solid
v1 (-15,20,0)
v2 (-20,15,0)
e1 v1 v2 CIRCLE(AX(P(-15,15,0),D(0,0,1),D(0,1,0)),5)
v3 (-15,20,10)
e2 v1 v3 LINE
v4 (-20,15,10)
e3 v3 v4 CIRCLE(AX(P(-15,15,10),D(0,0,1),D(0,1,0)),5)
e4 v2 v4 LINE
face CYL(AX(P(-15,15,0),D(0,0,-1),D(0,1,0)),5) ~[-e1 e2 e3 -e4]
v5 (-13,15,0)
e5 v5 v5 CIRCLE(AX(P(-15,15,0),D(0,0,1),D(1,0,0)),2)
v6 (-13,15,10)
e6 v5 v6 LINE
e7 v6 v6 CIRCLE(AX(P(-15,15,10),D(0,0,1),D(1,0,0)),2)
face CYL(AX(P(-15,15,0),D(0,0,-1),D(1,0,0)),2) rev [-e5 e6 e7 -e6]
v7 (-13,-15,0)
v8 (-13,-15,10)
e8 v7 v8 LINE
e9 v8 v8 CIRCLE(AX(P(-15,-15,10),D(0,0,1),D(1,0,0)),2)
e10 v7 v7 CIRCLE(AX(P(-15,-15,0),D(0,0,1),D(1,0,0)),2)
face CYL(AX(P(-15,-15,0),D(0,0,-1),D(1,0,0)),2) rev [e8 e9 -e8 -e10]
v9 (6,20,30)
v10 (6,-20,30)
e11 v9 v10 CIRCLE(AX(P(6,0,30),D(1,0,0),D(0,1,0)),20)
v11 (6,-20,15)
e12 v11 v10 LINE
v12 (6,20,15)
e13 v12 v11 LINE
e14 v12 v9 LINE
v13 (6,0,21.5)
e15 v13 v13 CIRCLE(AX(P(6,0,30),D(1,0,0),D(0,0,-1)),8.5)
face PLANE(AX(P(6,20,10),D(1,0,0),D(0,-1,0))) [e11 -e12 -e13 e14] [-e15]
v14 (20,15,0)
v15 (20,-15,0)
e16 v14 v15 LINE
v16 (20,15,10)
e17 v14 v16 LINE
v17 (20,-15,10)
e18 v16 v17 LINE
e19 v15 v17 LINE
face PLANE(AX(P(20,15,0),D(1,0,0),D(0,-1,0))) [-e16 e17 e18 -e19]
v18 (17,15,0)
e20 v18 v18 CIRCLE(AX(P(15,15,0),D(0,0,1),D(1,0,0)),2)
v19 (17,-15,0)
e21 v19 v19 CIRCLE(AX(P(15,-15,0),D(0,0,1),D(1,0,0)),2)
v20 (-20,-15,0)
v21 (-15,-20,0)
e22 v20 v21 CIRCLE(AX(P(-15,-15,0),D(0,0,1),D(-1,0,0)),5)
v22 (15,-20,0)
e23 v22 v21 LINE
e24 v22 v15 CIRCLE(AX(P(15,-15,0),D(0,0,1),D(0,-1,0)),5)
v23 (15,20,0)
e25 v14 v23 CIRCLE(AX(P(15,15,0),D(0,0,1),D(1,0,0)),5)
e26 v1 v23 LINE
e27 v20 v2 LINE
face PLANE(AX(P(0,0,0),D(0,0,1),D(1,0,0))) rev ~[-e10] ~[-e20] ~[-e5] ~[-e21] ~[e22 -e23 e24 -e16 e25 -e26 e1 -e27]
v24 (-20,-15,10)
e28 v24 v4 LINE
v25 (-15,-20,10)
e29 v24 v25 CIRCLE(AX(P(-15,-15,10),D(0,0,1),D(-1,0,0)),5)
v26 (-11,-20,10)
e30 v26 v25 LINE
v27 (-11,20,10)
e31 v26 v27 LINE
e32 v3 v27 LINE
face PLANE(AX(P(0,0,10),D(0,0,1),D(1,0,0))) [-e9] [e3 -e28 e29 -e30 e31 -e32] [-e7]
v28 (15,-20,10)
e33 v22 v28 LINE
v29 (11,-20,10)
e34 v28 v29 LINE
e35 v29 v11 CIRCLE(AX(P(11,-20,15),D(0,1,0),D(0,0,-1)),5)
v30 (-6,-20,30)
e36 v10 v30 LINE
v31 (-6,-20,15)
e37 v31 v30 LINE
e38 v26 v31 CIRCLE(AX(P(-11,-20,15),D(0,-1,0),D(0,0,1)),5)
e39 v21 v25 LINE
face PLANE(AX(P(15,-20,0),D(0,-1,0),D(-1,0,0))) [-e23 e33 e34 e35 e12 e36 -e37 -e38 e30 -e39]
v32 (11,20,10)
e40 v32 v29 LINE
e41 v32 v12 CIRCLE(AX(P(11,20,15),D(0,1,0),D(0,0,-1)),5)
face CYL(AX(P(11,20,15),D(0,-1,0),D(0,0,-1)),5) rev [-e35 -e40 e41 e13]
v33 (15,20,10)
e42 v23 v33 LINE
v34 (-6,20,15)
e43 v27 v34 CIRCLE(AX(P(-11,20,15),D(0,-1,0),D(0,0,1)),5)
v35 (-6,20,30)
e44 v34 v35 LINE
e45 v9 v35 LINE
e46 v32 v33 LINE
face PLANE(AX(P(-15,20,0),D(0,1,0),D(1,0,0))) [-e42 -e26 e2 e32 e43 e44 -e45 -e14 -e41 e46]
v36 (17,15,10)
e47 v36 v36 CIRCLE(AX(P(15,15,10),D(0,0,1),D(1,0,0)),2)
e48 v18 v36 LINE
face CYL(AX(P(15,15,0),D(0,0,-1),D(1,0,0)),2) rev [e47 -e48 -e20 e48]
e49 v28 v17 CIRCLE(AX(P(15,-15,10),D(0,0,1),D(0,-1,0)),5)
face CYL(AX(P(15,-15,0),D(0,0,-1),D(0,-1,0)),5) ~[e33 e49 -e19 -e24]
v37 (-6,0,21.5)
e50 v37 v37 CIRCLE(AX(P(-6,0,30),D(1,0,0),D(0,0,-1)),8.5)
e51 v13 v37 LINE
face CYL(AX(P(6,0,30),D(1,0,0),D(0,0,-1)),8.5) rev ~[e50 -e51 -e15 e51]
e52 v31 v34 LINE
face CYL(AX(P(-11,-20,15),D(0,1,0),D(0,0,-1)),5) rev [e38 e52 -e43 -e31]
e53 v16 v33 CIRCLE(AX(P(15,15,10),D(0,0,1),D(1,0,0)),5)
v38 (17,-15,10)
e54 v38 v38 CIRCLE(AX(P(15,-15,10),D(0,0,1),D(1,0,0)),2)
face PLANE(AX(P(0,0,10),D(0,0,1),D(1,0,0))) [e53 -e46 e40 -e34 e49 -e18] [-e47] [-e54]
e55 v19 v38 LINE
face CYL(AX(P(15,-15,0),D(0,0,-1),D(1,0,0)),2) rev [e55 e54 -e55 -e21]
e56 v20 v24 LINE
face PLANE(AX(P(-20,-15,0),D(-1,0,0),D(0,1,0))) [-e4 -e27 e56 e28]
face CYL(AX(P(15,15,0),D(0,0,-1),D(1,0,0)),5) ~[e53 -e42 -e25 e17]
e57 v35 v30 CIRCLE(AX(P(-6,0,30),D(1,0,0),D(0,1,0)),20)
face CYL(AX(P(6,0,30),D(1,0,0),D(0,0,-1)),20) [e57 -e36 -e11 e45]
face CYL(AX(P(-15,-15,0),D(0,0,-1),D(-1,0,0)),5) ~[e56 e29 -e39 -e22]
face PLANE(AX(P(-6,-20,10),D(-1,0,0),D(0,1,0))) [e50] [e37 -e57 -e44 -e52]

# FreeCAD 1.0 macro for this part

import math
import FreeCAD as App
import Part
import Sketcher

V = App.Vector


def edges_at(feature, points):
    """Names of the edges that pass closest to the given points."""
    edges = feature.Shape.Edges
    near = lambda p: min(range(len(edges)), key=lambda i: edges[i].distToShape(Part.Vertex(*p))[0])
    return sorted({f"Edge{near(p) + 1}" for p in points})

doc = App.newDocument("Part")
body = doc.addObject("PartDesign::Body", "Body")

# Sketch on XY plane
sketch1 = body.newObject("Sketcher::SketchObject", "Sketch")
sketch1.AttachmentSupport = (doc.getObject("XY_Plane"), [""])
sketch1.MapMode = "FlatFace"
sketch1.addGeometry([
    Part.LineSegment(V(15, 20, 0), V(-15, 20, 0)),  # 0
    Part.ArcOfCircle(Part.Circle(V(-15, 15, 0), V(0, 0, 1), 5), math.radians(90), math.radians(180)),  # 1
    Part.LineSegment(V(-20, 15, 0), V(-20, -15, 0)),  # 2
    Part.ArcOfCircle(Part.Circle(V(-15, -15, 0), V(0, 0, 1), 5), math.radians(180), math.radians(270)),  # 3
    Part.LineSegment(V(-15, -20, 0), V(15, -20, 0)),  # 4
    Part.ArcOfCircle(Part.Circle(V(15, -15, 0), V(0, 0, 1), 5), math.radians(-90), math.radians(0)),  # 5
    Part.LineSegment(V(20, -15, 0), V(20, 15, 0)),  # 6
    Part.ArcOfCircle(Part.Circle(V(15, 15, 0), V(0, 0, 1), 5), math.radians(0), math.radians(90)),  # 7
    Part.Circle(V(-15, -15, 0), V(0, 0, 1), 2),  # 8
    Part.Circle(V(15, -15, 0), V(0, 0, 1), 2),  # 9
    Part.Circle(V(-15, 15, 0), V(0, 0, 1), 2),  # 10
    Part.Circle(V(15, 15, 0), V(0, 0, 1), 2),  # 11
], False)
sketch1.addConstraint([
    Sketcher.Constraint("Tangent", 0, 2, 1, 1),
    Sketcher.Constraint("Tangent", 1, 2, 2, 1),
    Sketcher.Constraint("Tangent", 2, 2, 3, 1),
    Sketcher.Constraint("Tangent", 3, 2, 4, 1),
    Sketcher.Constraint("Tangent", 4, 2, 5, 1),
    Sketcher.Constraint("Tangent", 5, 2, 6, 1),
    Sketcher.Constraint("Tangent", 6, 2, 7, 1),
    Sketcher.Constraint("Tangent", 7, 2, 0, 1),
    Sketcher.Constraint("Horizontal", 0),
    Sketcher.Constraint("Vertical", 2),
    Sketcher.Constraint("Horizontal", 4),
    Sketcher.Constraint("Vertical", 6),
    Sketcher.Constraint("Coincident", 8, 3, 3, 3),
    Sketcher.Constraint("Coincident", 9, 3, 5, 3),
    Sketcher.Constraint("Coincident", 10, 3, 1, 3),
    Sketcher.Constraint("Coincident", 11, 3, 7, 3),
    Sketcher.Constraint("Equal", 1, 3),
    Sketcher.Constraint("Equal", 3, 5),
    Sketcher.Constraint("Equal", 5, 7),
    Sketcher.Constraint("Equal", 8, 9),
    Sketcher.Constraint("Equal", 9, 10),
    Sketcher.Constraint("Equal", 10, 11),
    Sketcher.Constraint("Symmetric", 1, 3, 5, 3, -1, 1),
    Sketcher.Constraint("Equal", 4, 2),
    Sketcher.Constraint("Diameter", 8, 4.0),
    Sketcher.Constraint("Radius", 1, 5.0),
    Sketcher.Constraint("DistanceX", 0, 2, 0, 1, 30.0),
])
pad1 = body.newObject("PartDesign::Pad", "Pad")
pad1.Profile = sketch1
pad1.Length = 10

# Sketch on XY plane
sketch2 = body.newObject("Sketcher::SketchObject", "Sketch001")
sketch2.AttachmentSupport = (doc.getObject("XY_Plane"), [""])
sketch2.MapMode = "FlatFace"
sketch2.AttachmentOffset = App.Placement(V(0, 0, 10), App.Rotation())
sketch2.addGeometry([
    Part.LineSegment(V(-6, 20, 0), V(-6, -20, 0)),
    Part.LineSegment(V(-6, -20, 0), V(6, -20, 0)),
    Part.LineSegment(V(6, -20, 0), V(6, 20, 0)),
    Part.LineSegment(V(6, 20, 0), V(-6, 20, 0)),
], False)
sketch2.addConstraint([
    Sketcher.Constraint("Coincident", 0, 2, 1, 1),
    Sketcher.Constraint("Coincident", 1, 2, 2, 1),
    Sketcher.Constraint("Coincident", 2, 2, 3, 1),
    Sketcher.Constraint("Coincident", 3, 2, 0, 1),
    Sketcher.Constraint("Vertical", 0),
    Sketcher.Constraint("Horizontal", 1),
    Sketcher.Constraint("Vertical", 2),
    Sketcher.Constraint("Horizontal", 3),
    Sketcher.Constraint("Symmetric", 0, 2, 2, 2, -1, 1),
    Sketcher.Constraint("DistanceX", 1, 1, 1, 2, 12.0),
    Sketcher.Constraint("DistanceY", 0, 2, 0, 1, 40.0),
])
pad2 = body.newObject("PartDesign::Pad", "Pad001")
pad2.Profile = sketch2
pad2.Length = 40
doc.recompute()

fillet = body.newObject("PartDesign::Fillet", "Fillet")
fillet.Base = (pad2, edges_at(pad2, [(6, 0, 10), (-6, 0, 10)]))
fillet.Radius = 5

# Sketch on YZ plane
sketch3 = body.newObject("Sketcher::SketchObject", "Sketch002")
sketch3.AttachmentSupport = (doc.getObject("YZ_Plane"), [""])
sketch3.MapMode = "FlatFace"
sketch3.AttachmentOffset = App.Placement(V(0, 0, 6), App.Rotation())
sketch3.addGeometry([
    Part.Circle(V(0, 30, 0), V(0, 0, 1), 8),  # 0
    Part.ArcOfCircle(Part.Circle(V(0, 30, 0), V(0, 0, 1), 20), math.radians(0), math.radians(90)),  # 1
    Part.LineSegment(V(20, 30, 0), V(20, 50, 0)),  # 2
    Part.LineSegment(V(20, 50, 0), V(0, 50, 0)),  # 3
    Part.LineSegment(V(-20, 50, 0), V(-20, 30, 0)),  # 4
    Part.ArcOfCircle(Part.Circle(V(0, 30, 0), V(0, 0, 1), 20), math.radians(90), math.radians(180)),  # 5
    Part.LineSegment(V(0, 50, 0), V(-20, 50, 0)),  # 6
], False)
sketch3.addConstraint([
    Sketcher.Constraint("Tangent", 1, 1, 2, 1),
    Sketcher.Constraint("Coincident", 2, 2, 3, 1),
    Sketcher.Constraint("Tangent", 3, 2, 1, 2),
    Sketcher.Constraint("Tangent", 4, 2, 5, 2),
    Sketcher.Constraint("Tangent", 5, 1, 6, 1),
    Sketcher.Constraint("Coincident", 6, 2, 4, 1),
    Sketcher.Constraint("Vertical", 2),
    Sketcher.Constraint("Horizontal", 3),
    Sketcher.Constraint("Vertical", 4),
    Sketcher.Constraint("Horizontal", 6),
    Sketcher.Constraint("Coincident", 1, 3, 0, 3),
    Sketcher.Constraint("Coincident", 5, 3, 0, 3),
    Sketcher.Constraint("Equal", 1, 5),
    Sketcher.Constraint("PointOnObject", 0, 3, -2),
    Sketcher.Constraint("Diameter", 0, 17.0),
    Sketcher.Constraint("Radius", 1, 20.0),
    Sketcher.Constraint("DistanceY", -1, 1, 0, 3, 30.0),
])
pocket1 = body.newObject("PartDesign::Pocket", "Pocket")
pocket1.Profile = sketch3
pocket1.Length = 50

doc.recompute()
